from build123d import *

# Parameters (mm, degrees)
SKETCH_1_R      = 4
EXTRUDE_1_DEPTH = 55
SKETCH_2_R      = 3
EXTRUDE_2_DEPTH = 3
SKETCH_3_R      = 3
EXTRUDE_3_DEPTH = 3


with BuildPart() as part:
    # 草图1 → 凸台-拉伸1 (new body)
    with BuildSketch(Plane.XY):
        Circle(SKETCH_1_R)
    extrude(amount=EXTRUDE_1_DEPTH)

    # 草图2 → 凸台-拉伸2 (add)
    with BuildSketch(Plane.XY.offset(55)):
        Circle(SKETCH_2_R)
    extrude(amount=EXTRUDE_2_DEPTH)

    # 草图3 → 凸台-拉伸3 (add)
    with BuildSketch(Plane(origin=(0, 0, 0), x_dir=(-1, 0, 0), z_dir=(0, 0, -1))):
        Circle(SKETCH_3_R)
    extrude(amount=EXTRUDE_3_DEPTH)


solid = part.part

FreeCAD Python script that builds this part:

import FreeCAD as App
import Part
import Sketcher

V = App.Vector
Q = App.Units.Quantity

doc = App.newDocument("Part")
body = doc.addObject("PartDesign::Body", "Body")

# Sketch on XY plane
sketch1 = body.newObject("Sketcher::SketchObject", "Sketch")
sketch1.AttachmentSupport = (doc.getObject("XY_Plane"), [""])
sketch1.MapMode = "FlatFace"
sketch1.addGeometry(Part.Circle(V(0, 0, 0), V(0, 0, 1), 4), False)
sketch1.addConstraint([
    Sketcher.Constraint("Coincident", 0, 3, -1, 1),
    Sketcher.Constraint("Diameter", 0, Q("8 mm")),
])
pad1 = body.newObject("PartDesign::Pad", "Pad")
pad1.Profile = sketch1
pad1.Length = 55

# Sketch on XY plane
sketch2 = body.newObject("Sketcher::SketchObject", "Sketch001")
sketch2.AttachmentSupport = (doc.getObject("XY_Plane"), [""])
sketch2.MapMode = "FlatFace"
sketch2.AttachmentOffset = App.Placement(V(0, 0, 55), App.Rotation())
sketch2.addGeometry(Part.Circle(V(0, 0, 0), V(0, 0, 1), 3), False)
sketch2.addConstraint([
    Sketcher.Constraint("Coincident", 0, 3, -1, 1),
    Sketcher.Constraint("Diameter", 0, Q("6 mm")),
])
pad2 = body.newObject("PartDesign::Pad", "Pad001")
pad2.Profile = sketch2
pad2.Length = 3

# Sketch on XY plane
sketch3 = body.newObject("Sketcher::SketchObject", "Sketch002")
sketch3.AttachmentSupport = (doc.getObject("XY_Plane"), [""])
sketch3.MapMode = "FlatFace"
sketch3.addGeometry(Part.Circle(V(0, 0, 0), V(0, 0, 1), 3), False)
sketch3.addConstraint([
    Sketcher.Constraint("Coincident", 0, 3, -1, 1),
    Sketcher.Constraint("Diameter", 0, Q("6 mm")),
])
pad3 = body.newObject("PartDesign::Pad", "Pad002")
pad3.Profile = sketch3
pad3.Length = 3
pad3.Reversed = True

doc.recompute()
